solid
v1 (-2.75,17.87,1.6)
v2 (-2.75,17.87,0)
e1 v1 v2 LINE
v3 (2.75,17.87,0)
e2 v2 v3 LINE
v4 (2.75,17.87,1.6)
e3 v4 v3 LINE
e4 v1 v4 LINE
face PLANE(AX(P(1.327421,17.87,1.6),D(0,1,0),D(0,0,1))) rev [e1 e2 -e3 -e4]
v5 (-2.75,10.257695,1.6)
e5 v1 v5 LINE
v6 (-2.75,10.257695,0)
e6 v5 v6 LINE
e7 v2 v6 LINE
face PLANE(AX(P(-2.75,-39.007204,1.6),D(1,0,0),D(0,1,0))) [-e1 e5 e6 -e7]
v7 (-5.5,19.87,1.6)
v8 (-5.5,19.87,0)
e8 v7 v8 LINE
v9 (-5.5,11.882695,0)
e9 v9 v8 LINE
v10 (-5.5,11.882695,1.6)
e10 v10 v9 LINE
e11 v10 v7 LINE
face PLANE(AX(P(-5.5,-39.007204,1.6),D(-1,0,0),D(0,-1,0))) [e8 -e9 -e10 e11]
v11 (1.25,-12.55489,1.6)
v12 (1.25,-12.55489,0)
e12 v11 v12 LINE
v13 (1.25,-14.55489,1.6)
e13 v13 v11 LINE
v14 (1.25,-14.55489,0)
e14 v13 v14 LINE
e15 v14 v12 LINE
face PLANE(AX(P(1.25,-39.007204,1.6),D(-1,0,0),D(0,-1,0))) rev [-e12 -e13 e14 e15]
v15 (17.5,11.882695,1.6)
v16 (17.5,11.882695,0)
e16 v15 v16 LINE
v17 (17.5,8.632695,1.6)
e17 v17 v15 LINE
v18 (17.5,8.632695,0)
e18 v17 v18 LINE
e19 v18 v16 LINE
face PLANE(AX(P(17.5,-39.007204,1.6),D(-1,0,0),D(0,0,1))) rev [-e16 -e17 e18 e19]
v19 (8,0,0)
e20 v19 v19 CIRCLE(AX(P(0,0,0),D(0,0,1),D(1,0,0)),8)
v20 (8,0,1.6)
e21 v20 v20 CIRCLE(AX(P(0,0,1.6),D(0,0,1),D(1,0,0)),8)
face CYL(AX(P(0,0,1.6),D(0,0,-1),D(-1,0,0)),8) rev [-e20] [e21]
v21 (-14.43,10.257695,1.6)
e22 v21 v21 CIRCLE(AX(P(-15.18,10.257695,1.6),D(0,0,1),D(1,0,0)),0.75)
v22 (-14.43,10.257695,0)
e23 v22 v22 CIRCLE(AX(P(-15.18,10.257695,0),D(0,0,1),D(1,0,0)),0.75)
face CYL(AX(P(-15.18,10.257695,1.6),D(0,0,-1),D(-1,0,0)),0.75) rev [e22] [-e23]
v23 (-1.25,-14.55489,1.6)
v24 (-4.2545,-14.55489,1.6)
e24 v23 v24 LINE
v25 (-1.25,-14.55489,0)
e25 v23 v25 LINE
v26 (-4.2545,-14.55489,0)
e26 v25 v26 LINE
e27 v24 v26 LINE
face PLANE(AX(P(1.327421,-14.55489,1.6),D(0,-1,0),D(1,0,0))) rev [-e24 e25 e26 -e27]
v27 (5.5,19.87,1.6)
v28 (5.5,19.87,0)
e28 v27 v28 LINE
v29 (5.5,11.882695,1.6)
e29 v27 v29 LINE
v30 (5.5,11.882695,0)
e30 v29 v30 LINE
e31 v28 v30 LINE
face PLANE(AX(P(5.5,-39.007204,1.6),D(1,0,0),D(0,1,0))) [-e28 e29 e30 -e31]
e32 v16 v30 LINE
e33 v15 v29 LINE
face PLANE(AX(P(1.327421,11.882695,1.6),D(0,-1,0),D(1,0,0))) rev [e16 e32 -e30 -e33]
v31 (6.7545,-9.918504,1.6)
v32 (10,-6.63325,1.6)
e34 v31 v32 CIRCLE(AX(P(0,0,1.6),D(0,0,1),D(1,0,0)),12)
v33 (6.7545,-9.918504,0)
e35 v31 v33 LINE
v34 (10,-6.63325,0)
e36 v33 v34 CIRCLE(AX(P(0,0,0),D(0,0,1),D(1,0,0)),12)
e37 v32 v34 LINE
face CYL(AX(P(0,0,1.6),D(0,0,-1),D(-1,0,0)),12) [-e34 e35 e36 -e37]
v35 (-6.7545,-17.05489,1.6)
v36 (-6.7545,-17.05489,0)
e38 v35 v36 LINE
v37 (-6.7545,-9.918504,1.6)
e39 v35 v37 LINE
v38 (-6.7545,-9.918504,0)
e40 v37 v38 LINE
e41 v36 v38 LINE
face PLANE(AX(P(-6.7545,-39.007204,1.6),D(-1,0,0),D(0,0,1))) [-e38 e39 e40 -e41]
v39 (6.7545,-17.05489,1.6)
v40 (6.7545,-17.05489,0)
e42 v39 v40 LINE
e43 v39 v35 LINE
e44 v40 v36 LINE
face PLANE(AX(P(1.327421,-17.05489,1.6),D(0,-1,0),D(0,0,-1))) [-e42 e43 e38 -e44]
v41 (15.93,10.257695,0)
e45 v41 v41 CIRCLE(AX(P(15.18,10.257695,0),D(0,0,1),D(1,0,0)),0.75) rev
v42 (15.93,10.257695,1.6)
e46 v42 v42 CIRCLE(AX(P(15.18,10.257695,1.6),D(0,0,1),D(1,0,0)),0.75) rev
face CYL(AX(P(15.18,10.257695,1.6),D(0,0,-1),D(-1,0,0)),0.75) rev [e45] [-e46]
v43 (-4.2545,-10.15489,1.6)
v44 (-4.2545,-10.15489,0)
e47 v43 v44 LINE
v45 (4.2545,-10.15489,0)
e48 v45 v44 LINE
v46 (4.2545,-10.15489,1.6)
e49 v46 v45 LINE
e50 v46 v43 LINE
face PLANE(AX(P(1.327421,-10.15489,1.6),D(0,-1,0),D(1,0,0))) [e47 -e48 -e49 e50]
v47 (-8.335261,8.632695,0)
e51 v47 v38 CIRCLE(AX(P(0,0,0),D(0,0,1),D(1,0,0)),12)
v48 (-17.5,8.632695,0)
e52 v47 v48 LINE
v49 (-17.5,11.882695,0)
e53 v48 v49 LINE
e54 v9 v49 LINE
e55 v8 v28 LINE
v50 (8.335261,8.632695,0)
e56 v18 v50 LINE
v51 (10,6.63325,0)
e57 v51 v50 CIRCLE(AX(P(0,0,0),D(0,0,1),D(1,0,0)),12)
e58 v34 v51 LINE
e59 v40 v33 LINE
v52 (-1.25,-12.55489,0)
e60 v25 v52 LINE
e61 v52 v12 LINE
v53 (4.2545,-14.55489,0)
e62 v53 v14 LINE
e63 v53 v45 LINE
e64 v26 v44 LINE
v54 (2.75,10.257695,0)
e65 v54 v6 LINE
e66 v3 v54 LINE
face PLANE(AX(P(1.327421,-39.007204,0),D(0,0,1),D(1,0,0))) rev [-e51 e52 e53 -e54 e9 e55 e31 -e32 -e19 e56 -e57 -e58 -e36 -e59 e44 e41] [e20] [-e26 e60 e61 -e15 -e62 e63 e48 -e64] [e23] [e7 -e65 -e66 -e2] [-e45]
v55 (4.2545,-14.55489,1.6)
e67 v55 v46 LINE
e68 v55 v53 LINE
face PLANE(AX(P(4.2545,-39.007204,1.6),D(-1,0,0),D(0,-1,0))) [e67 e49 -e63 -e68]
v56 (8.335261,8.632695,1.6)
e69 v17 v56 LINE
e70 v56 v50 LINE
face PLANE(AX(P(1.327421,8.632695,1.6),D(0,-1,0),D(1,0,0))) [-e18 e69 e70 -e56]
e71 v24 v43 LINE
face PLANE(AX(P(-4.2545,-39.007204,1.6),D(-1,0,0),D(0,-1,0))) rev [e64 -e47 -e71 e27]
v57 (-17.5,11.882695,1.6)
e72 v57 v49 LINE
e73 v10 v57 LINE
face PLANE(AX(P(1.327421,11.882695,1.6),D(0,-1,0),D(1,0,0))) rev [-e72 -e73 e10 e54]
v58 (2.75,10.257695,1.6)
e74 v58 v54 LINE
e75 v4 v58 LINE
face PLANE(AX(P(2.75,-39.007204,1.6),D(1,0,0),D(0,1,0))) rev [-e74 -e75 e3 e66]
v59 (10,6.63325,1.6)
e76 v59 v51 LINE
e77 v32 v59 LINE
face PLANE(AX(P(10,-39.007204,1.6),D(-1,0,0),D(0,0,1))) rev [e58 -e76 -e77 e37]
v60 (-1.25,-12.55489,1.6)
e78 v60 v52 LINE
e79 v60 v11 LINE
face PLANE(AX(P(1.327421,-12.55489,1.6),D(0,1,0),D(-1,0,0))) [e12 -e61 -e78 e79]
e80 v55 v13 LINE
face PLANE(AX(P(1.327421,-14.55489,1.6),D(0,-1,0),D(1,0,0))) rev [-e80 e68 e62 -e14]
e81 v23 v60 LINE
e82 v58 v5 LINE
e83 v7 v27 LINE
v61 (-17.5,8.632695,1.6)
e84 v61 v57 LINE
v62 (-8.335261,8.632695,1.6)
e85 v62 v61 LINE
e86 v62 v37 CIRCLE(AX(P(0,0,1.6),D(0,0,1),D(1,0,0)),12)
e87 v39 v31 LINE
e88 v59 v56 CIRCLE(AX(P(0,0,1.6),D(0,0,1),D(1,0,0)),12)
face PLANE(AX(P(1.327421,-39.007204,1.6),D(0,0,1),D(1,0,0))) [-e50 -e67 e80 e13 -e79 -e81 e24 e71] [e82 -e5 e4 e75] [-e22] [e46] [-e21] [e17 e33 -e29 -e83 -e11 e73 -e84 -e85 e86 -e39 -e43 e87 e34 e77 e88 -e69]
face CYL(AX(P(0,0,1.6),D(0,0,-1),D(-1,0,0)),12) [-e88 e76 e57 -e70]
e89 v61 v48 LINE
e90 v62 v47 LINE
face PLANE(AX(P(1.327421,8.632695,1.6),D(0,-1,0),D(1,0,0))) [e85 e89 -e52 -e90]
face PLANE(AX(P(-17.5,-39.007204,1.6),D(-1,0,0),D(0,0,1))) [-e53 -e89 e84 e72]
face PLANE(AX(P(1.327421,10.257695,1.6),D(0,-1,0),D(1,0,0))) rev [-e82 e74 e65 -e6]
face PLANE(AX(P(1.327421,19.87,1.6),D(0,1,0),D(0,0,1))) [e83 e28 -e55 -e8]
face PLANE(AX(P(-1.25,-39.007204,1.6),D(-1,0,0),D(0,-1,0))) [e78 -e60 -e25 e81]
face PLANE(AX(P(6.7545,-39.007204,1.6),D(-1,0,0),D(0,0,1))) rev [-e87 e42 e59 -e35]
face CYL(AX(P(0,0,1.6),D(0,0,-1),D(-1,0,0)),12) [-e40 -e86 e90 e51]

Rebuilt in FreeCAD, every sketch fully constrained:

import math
import FreeCAD as App
import Part
import Sketcher

V = App.Vector
Q = App.Units.Quantity

doc = App.newDocument("Part")
params = doc.addObject("Spreadsheet::Sheet", "Params")
for row, (alias, value) in enumerate([
    ("sketch1_diameter", "16 mm"),
    ("sketch1_radius", "12 mm"),
    ("sketch1_diameter2", "1.5 mm"),
    ("sketch1_width", "11 mm"),
    ("sketch1_width2", "12 mm"),
    ("pad1_length", "1.6 mm"),
], start=1):
    params.set(f"A{row}", alias)
    params.set(f"B{row}", "=" + value)
    params.setAlias(f"B{row}", alias)

body = doc.addObject("PartDesign::Body", "Body")

sketch1 = doc.addObject("Sketcher::SketchObject", "Sketch")
body.addObject(sketch1)
sketch1.AttachmentSupport = (doc.XY_Plane, [""])
sketch1.MapMode = "FlatFace"
sketch1.addGeometry([
    Part.LineSegment(V(5.5, 19.87, 0), V(-5.5, 19.87, 0)),
    Part.LineSegment(V(-5.5, 19.87, 0), V(-5.5, 11.882695, 0)),
    Part.LineSegment(V(-5.5, 11.882695, 0), V(-17.5, 11.882695, 0)),
    Part.LineSegment(V(-17.5, 11.882695, 0), V(-17.5, 8.632695, 0)),
    Part.LineSegment(V(-17.5, 8.632695, 0), V(-8.335261, 8.632695, 0)),
    Part.ArcOfCircle(Part.Circle(V(0, 0, 0), V(0, 0, 1), 12), math.radians(133.995759), math.radians(235.745143)),
    Part.LineSegment(V(-6.7545, -9.918504, 0), V(-6.7545, -17.05489, 0)),
    Part.LineSegment(V(-6.7545, -17.05489, 0), V(6.7545, -17.05489, 0)),
    Part.LineSegment(V(6.7545, -17.05489, 0), V(6.7545, -9.918504, 0)),
    Part.ArcOfCircle(Part.Circle(V(0, 0, 0), V(0, 0, 1), 12), math.radians(-55.745143), math.radians(-33.55731)),
    Part.LineSegment(V(10, -6.63325, 0), V(10, 6.63325, 0)),
    Part.ArcOfCircle(Part.Circle(V(0, 0, 0), V(0, 0, 1), 12), math.radians(33.55731), math.radians(46.004241)),
    Part.LineSegment(V(8.335261, 8.632695, 0), V(17.5, 8.632695, 0)),
    Part.LineSegment(V(17.5, 8.632695, 0), V(17.5, 11.882695, 0)),
    Part.LineSegment(V(17.5, 11.882695, 0), V(5.5, 11.882695, 0)),
    Part.LineSegment(V(5.5, 11.882695, 0), V(5.5, 19.87, 0)),
    Part.LineSegment(V(-4.2545, -14.55489, 0), V(-4.2545, -10.15489, 0)),
    Part.LineSegment(V(-4.2545, -10.15489, 0), V(4.2545, -10.15489, 0)),
    Part.LineSegment(V(4.2545, -10.15489, 0), V(4.2545, -14.55489, 0)),
    Part.LineSegment(V(4.2545, -14.55489, 0), V(1.25, -14.55489, 0)),
    Part.LineSegment(V(1.25, -14.55489, 0), V(1.25, -12.55489, 0)),
    Part.LineSegment(V(1.25, -12.55489, 0), V(-1.25, -12.55489, 0)),
    Part.LineSegment(V(-1.25, -12.55489, 0), V(-1.25, -14.55489, 0)),
    Part.LineSegment(V(-1.25, -14.55489, 0), V(-4.2545, -14.55489, 0)),
    Part.Circle(V(0, 0, 0), V(0, 0, 1), 8),
    Part.Circle(V(-15.18, 10.257695, 0), V(0, 0, 1), 0.75),
    Part.LineSegment(V(2.75, 10.257695, 0), V(-2.75, 10.257695, 0)),
    Part.LineSegment(V(-2.75, 10.257695, 0), V(-2.75, 17.87, 0)),
    Part.LineSegment(V(-2.75, 17.87, 0), V(2.75, 17.87, 0)),
    Part.LineSegment(V(2.75, 17.87, 0), V(2.75, 10.257695, 0)),
    Part.Circle(V(15.18, 10.257695, 0), V(0, 0, 1), 0.75),
], False)
sketch1.addConstraint([
    Sketcher.Constraint("Coincident", 0, 2, 1, 1),
    Sketcher.Constraint("Coincident", 1, 2, 2, 1),
    Sketcher.Constraint("Coincident", 2, 2, 3, 1),
    Sketcher.Constraint("Coincident", 3, 2, 4, 1),
    Sketcher.Constraint("Coincident", 4, 2, 5, 1),
    Sketcher.Constraint("Coincident", 5, 2, 6, 1),
    Sketcher.Constraint("Coincident", 6, 2, 7, 1),
    Sketcher.Constraint("Coincident", 7, 2, 8, 1),
    Sketcher.Constraint("Coincident", 8, 2, 9, 1),
    Sketcher.Constraint("Coincident", 9, 2, 10, 1),
    Sketcher.Constraint("Coincident", 10, 2, 11, 1),
    Sketcher.Constraint("Coincident", 11, 2, 12, 1),
    Sketcher.Constraint("Coincident", 12, 2, 13, 1),
    Sketcher.Constraint("Coincident", 13, 2, 14, 1),
    Sketcher.Constraint("Coincident", 14, 2, 15, 1),
    Sketcher.Constraint("Coincident", 15, 2, 0, 1),
    Sketcher.Constraint("Coincident", 16, 2, 17, 1),
    Sketcher.Constraint("Coincident", 17, 2, 18, 1),
    Sketcher.Constraint("Coincident", 18, 2, 19, 1),
    Sketcher.Constraint("Coincident", 19, 2, 20, 1),
    Sketcher.Constraint("Coincident", 20, 2, 21, 1),
    Sketcher.Constraint("Coincident", 21, 2, 22, 1),
    Sketcher.Constraint("Coincident", 22, 2, 23, 1),
    Sketcher.Constraint("Coincident", 23, 2, 16, 1),
    Sketcher.Constraint("Coincident", 26, 2, 27, 1),
    Sketcher.Constraint("Coincident", 27, 2, 28, 1),
    Sketcher.Constraint("Coincident", 28, 2, 29, 1),
    Sketcher.Constraint("Coincident", 29, 2, 26, 1),
    Sketcher.Constraint("Horizontal", 0),
    Sketcher.Constraint("Vertical", 1),
    Sketcher.Constraint("Horizontal", 2),
    Sketcher.Constraint("Vertical", 3),
    Sketcher.Constraint("Horizontal", 4),
    Sketcher.Constraint("Vertical", 6),
    Sketcher.Constraint("Horizontal", 7),
    Sketcher.Constraint("Vertical", 8),
    Sketcher.Constraint("Vertical", 10),
    Sketcher.Constraint("Horizontal", 12),
    Sketcher.Constraint("Vertical", 13),
    Sketcher.Constraint("Horizontal", 14),
    Sketcher.Constraint("Vertical", 15),
    Sketcher.Constraint("Vertical", 16),
    Sketcher.Constraint("Horizontal", 17),
    Sketcher.Constraint("Vertical", 18),
    Sketcher.Constraint("Horizontal", 19),
    Sketcher.Constraint("Vertical", 20),
    Sketcher.Constraint("Horizontal", 21),
    Sketcher.Constraint("Vertical", 22),
    Sketcher.Constraint("Horizontal", 23),
    Sketcher.Constraint("Horizontal", 26),
    Sketcher.Constraint("Vertical", 27),
    Sketcher.Constraint("Horizontal", 28),
    Sketcher.Constraint("Vertical", 29),
    Sketcher.Constraint("Coincident", 5, 3, -1, 1),
    Sketcher.Constraint("Coincident", 9, 3, -1, 1),
    Sketcher.Constraint("Coincident", 11, 3, -1, 1),
    Sketcher.Constraint("Coincident", 24, 3, -1, 1),
    Sketcher.Constraint("Equal", 5, 9),
    Sketcher.Constraint("Equal", 9, 11),
    Sketcher.Constraint("Equal", 25, 30),
    Sketcher.Constraint("Symmetric", 25, 3, 30, 3, -2),
    Sketcher.Constraint("Symmetric", 3, 2, 12, 2, -2),
    Sketcher.Constraint("Symmetric", 1, 2, 14, 2, -2),
    Sketcher.Constraint("Symmetric", 19, 2, 22, 2, -2),
    Sketcher.Constraint("Horizontal", 5, 2, 8, 2),
    Sketcher.Constraint("Horizontal", 30, 3, 26, 2),
    Sketcher.Constraint("Equal", 19, 23),
    Sketcher.Constraint("Diameter", 24, Q("16 mm")),
    Sketcher.Constraint("Radius", 5, Q("12 mm")),
    Sketcher.Constraint("Diameter", 25, Q("1.5 mm")),
    Sketcher.Constraint("DistanceX", 0, 2, 0, 1, Q("11 mm")),
    Sketcher.Constraint("DistanceX", 2, 2, 2, 1, Q("12 mm")),
    Sketcher.Constraint("DistanceY", 20, 1, 20, 2, Q("2 mm")),
    Sketcher.Constraint("DistanceX", 21, 2, 21, 1, Q("2.5 mm")),
    Sketcher.Constraint("DistanceX", 26, 2, 26, 1, Q("5.5 mm")),
    Sketcher.Constraint("DistanceY", 16, 1, 16, 2, Q("4.4 mm")),
    Sketcher.Constraint("DistanceX", -1, 1, 9, 2, Q("10 mm")),
    Sketcher.Constraint("DistanceY", 27, 2, 0, 2, Q("2 mm")),
    Sketcher.Constraint("DistanceY", 3, 2, 3, 1, Q("3.25 mm")),
    Sketcher.Constraint("DistanceX", 5, 2, 16, 2, Q("2.5 mm")),
    Sketcher.Constraint("DistanceY", 6, 2, 16, 2, Q("6.9 mm")),
    Sketcher.Constraint("DistanceX", 7, 1, 7, 2, Q("13.509 mm")),
    Sketcher.Constraint("DistanceX", 25, 3, -1, 1, Q("15.18 mm")),
    Sketcher.Constraint("DistanceY", -1, 1, 0, 2, Q("19.87 mm")),
    Sketcher.Constraint("DistanceX", 26, 2, -1, 1, Q("2.75 mm")),
    Sketcher.Constraint("DistanceY", 25, 3, 1, 2, Q("1.625 mm")),
    Sketcher.Constraint("DistanceX", 4, 1, 4, 2, Q("9.164739 mm")),
    Sketcher.Constraint("DistanceY", 6, 2, 6, 1, Q("7.136386 mm")),
])
sketch1.setExpression("Constraints[67]", "Params.sketch1_diameter")
sketch1.setExpression("Constraints[68]", "Params.sketch1_radius")
sketch1.setExpression("Constraints[69]", "Params.sketch1_diameter2")
sketch1.setExpression("Constraints[70]", "Params.sketch1_width")
sketch1.setExpression("Constraints[71]", "Params.sketch1_width2")
pad1 = doc.addObject("PartDesign::Pad", "Pad")
body.addObject(pad1)
pad1.Profile = sketch1
pad1.setExpression("Length", "Params.pad1_length")

doc.recompute()
